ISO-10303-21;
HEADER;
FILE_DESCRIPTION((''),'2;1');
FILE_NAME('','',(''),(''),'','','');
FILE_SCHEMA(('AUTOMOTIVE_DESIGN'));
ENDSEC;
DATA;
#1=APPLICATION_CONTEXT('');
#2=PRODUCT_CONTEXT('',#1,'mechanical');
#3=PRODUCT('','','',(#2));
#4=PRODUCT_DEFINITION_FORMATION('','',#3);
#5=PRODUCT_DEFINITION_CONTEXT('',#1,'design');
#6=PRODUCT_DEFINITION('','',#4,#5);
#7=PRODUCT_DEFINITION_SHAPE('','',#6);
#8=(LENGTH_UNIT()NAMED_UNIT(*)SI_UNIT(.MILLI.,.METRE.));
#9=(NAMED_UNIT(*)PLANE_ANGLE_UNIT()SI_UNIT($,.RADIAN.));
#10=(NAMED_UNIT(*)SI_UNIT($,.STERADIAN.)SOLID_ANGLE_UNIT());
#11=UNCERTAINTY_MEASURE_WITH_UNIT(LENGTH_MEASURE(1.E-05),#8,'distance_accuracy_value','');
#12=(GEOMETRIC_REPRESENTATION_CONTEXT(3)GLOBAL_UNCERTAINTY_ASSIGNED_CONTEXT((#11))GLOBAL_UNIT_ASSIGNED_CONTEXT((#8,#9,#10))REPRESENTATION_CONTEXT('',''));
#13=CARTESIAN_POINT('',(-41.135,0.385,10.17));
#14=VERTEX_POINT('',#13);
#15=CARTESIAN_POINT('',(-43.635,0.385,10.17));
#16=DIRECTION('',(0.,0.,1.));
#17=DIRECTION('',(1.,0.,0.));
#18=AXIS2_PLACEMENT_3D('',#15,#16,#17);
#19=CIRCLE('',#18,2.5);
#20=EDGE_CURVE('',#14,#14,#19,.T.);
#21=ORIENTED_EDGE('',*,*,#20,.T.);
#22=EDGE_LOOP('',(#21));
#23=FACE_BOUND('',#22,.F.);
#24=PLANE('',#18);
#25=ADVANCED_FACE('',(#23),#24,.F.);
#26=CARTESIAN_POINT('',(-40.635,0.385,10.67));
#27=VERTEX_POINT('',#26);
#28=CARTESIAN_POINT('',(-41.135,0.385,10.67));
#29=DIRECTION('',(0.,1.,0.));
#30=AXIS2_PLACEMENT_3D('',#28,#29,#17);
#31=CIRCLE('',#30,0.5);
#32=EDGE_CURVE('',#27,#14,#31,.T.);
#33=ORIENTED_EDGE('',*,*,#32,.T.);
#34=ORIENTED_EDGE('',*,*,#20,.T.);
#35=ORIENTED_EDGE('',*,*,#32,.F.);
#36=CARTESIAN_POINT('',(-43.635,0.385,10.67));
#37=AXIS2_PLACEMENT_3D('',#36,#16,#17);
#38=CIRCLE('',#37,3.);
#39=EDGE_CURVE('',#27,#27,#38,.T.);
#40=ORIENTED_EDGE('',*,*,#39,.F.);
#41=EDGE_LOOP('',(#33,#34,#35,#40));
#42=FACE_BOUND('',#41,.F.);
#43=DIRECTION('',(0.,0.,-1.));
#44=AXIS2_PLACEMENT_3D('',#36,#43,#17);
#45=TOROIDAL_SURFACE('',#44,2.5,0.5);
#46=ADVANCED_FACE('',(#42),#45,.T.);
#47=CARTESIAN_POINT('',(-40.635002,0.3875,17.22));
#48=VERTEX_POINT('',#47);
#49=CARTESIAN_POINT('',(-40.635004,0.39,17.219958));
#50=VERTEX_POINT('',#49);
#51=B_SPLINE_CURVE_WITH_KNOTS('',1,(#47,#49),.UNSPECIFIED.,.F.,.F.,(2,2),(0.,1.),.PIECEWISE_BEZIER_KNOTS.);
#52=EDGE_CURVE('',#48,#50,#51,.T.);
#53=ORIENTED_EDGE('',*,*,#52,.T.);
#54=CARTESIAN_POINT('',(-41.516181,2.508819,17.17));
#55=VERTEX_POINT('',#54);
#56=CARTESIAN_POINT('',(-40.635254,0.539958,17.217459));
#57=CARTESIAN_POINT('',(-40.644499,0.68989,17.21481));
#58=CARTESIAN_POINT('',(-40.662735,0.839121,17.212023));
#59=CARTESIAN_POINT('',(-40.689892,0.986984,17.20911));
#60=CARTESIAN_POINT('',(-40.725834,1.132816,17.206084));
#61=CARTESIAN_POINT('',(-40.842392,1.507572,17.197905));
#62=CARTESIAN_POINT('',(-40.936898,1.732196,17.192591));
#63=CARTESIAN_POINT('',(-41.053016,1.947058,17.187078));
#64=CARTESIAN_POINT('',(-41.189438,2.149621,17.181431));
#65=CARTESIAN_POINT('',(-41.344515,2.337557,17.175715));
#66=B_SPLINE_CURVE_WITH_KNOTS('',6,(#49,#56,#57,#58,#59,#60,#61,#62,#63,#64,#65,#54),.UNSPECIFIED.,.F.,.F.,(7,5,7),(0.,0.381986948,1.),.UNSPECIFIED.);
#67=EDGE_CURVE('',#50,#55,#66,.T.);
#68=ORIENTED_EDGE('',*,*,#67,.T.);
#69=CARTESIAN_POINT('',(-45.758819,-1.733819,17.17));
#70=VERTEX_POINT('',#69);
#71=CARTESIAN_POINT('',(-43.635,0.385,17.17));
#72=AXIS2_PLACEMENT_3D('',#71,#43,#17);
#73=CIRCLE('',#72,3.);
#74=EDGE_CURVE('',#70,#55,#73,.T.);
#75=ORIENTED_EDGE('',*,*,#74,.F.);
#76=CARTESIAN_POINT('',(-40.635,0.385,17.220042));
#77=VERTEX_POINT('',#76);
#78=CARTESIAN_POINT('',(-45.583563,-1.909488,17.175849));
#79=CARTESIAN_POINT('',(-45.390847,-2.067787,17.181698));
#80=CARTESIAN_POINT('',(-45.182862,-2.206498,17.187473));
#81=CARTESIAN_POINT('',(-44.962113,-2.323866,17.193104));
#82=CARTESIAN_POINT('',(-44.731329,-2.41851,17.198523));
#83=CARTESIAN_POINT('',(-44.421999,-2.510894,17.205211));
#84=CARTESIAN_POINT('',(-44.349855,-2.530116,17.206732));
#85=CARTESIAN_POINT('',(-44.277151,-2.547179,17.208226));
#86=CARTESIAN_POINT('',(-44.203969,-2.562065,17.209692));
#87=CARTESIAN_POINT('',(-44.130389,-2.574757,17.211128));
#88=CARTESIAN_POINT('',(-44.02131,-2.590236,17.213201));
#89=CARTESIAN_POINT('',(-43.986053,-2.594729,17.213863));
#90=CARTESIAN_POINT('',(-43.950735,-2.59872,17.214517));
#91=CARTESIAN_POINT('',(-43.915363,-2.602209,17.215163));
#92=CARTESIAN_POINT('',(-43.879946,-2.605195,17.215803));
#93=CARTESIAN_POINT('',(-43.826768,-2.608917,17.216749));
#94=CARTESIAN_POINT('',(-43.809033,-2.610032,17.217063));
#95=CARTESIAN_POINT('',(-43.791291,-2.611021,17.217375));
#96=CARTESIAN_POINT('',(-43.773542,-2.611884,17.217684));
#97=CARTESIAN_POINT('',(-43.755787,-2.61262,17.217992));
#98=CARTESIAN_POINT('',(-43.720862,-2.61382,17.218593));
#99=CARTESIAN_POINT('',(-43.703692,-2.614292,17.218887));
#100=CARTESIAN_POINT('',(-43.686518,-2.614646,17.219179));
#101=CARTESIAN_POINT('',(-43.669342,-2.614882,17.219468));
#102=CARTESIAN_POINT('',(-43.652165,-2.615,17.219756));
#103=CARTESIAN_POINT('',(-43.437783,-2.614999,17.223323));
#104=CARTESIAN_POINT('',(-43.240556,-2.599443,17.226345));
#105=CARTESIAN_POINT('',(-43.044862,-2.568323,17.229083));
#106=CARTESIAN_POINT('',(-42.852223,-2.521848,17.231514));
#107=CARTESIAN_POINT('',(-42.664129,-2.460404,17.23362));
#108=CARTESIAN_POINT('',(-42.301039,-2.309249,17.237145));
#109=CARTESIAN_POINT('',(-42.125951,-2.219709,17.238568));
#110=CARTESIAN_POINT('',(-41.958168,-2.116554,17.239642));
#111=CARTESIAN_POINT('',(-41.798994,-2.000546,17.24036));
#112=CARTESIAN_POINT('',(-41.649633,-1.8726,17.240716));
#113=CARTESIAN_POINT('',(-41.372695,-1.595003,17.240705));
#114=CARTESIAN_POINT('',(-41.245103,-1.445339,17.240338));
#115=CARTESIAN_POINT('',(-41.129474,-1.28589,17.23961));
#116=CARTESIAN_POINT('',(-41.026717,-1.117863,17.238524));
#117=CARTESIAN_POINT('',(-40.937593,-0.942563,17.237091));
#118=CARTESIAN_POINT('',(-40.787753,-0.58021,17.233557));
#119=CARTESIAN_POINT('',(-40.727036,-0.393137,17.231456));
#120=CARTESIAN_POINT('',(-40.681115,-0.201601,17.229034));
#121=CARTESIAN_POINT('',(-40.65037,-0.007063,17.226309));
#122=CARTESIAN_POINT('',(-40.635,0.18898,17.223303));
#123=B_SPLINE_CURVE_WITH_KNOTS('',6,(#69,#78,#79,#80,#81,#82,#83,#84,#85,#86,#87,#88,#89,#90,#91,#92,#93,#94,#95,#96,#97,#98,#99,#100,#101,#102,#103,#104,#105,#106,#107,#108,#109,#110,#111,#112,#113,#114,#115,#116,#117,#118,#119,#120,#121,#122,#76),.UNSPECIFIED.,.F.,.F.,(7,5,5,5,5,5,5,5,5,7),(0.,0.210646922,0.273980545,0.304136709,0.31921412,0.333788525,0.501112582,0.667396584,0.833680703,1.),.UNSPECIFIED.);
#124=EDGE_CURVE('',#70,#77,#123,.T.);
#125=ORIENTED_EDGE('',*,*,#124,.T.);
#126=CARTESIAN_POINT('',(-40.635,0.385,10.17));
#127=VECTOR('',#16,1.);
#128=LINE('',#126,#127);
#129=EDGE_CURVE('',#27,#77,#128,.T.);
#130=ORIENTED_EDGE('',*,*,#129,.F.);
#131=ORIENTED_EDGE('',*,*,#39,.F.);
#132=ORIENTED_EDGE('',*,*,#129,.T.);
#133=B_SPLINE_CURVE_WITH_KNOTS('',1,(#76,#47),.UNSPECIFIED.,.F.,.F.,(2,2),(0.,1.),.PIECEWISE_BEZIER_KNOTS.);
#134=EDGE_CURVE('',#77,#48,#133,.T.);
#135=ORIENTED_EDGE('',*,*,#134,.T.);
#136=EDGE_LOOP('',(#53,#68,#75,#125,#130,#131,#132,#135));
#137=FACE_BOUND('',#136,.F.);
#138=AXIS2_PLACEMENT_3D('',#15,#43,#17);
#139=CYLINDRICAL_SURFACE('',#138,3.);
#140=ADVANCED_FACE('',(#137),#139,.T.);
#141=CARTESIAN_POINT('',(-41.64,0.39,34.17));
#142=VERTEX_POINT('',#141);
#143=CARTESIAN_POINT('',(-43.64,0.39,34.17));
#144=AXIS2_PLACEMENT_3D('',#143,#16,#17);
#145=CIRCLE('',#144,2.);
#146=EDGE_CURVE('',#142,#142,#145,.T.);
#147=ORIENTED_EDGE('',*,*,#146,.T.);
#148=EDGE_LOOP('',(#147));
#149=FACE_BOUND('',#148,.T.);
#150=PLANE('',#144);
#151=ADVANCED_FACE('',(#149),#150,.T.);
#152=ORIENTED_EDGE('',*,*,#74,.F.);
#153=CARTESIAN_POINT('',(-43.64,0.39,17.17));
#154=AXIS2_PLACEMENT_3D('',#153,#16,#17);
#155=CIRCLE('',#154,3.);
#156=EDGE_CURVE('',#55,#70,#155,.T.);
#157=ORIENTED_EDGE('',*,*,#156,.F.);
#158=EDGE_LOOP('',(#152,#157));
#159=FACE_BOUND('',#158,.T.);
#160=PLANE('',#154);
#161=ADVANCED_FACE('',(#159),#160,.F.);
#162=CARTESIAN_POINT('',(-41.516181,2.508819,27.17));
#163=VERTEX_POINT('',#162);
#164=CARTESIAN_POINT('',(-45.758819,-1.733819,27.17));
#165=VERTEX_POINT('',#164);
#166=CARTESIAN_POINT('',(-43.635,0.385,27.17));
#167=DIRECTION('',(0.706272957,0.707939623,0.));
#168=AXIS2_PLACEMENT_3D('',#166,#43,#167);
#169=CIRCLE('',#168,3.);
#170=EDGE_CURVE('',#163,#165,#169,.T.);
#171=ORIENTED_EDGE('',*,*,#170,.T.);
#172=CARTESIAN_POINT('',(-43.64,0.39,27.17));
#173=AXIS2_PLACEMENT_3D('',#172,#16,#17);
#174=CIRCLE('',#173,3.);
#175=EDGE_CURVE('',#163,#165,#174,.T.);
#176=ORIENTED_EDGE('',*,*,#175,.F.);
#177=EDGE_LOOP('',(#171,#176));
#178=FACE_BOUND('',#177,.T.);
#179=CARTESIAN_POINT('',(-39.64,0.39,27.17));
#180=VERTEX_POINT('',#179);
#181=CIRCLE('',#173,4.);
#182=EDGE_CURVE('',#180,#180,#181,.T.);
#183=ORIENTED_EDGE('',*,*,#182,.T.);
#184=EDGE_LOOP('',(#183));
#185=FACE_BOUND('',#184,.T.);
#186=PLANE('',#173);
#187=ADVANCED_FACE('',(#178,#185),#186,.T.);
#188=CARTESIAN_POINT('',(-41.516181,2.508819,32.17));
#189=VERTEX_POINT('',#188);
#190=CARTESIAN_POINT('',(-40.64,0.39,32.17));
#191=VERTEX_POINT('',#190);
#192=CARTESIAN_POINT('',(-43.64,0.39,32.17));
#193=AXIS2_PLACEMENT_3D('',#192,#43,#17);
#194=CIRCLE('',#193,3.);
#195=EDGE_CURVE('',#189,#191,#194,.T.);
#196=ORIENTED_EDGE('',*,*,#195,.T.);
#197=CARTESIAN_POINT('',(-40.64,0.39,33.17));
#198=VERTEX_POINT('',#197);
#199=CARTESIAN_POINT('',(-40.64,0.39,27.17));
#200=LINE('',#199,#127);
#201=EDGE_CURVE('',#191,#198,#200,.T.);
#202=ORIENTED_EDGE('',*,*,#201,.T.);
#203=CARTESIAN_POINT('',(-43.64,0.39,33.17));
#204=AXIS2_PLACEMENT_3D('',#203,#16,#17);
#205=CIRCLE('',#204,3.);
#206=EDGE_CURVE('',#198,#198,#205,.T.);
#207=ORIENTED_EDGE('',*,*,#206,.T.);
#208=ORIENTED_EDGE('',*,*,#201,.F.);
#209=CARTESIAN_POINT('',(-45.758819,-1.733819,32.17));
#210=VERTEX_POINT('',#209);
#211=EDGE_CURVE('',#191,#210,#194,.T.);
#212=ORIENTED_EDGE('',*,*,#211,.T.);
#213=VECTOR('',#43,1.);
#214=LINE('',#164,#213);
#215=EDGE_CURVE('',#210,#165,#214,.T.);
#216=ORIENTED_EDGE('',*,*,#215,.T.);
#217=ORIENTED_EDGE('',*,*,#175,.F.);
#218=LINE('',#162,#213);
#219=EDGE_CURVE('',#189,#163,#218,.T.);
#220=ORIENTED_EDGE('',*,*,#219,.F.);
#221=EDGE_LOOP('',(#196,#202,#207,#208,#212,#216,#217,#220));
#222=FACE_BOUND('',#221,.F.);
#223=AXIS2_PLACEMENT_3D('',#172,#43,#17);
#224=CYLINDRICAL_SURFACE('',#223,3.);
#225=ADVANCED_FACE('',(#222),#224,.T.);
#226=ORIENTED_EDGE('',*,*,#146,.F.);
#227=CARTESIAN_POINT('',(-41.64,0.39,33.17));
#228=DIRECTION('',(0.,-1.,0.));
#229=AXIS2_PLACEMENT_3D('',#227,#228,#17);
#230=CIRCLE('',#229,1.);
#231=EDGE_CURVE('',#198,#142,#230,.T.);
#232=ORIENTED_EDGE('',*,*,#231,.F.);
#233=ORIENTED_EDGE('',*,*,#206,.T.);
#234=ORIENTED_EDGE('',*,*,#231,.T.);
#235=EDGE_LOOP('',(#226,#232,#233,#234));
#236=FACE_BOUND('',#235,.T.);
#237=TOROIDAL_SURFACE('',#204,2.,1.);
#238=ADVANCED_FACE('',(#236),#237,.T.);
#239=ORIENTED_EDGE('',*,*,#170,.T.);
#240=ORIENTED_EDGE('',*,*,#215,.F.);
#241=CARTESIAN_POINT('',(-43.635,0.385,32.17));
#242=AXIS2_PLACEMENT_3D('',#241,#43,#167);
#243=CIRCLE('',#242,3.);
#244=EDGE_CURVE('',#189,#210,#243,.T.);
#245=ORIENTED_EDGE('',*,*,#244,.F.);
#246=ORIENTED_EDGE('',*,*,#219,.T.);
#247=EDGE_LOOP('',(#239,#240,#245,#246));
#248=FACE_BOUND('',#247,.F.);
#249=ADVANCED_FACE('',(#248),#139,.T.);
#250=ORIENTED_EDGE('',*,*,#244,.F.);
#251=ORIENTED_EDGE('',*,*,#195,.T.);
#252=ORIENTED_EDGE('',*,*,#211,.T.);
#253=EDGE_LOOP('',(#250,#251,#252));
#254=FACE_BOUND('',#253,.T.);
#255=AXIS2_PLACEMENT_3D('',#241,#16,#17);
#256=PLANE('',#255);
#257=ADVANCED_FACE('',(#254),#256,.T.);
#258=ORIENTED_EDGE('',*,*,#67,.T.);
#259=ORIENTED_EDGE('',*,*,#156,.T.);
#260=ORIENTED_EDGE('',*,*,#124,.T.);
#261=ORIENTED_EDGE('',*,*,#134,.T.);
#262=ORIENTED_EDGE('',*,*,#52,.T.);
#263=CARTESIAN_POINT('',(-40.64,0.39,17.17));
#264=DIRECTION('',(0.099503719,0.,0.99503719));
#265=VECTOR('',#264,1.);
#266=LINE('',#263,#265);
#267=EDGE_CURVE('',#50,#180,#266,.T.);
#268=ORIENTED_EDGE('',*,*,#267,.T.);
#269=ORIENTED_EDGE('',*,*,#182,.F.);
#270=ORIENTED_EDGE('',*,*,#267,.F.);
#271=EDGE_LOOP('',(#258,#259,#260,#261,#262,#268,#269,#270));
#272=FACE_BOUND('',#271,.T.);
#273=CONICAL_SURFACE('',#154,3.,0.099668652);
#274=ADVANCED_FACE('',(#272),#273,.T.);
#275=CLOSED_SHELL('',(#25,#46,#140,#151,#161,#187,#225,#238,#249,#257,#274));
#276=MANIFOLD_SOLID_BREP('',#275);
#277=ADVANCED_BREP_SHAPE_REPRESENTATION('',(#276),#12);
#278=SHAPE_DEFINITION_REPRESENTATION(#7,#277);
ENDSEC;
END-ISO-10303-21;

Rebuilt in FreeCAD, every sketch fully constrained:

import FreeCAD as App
import Part
import Sketcher

V = App.Vector


def edges_at(feature, points):
    """Names of the edges that pass closest to the given points."""
    edges = feature.Shape.Edges
    near = lambda p: min(range(len(edges)), key=lambda i: edges[i].distToShape(Part.Vertex(*p))[0])
    return sorted({f"Edge{near(p) + 1}" for p in points})

doc = App.newDocument("Part")
body = doc.addObject("PartDesign::Body", "Body")

sketch1 = body.newObject("Sketcher::SketchObject", "Sketch")
sketch1.AttachmentSupport = (doc.getObject("XY_Plane"), [""])
sketch1.MapMode = "FlatFace"
sketch1.AttachmentOffset = App.Placement(V(0, 0, 10.17), App.Rotation())
sketch1.addGeometry(Part.Circle(V(-43.6, 0.4, 0), V(0, 0, 1), 3), False)
sketch1.addConstraint(Sketcher.Constraint("Diameter", 0, 6.0))
sketch1.addConstraint(Sketcher.Constraint("DistanceX", 0, 3, -1, 1, 43.635))
sketch1.addConstraint(Sketcher.Constraint("DistanceY", -1, 1, 0, 3, 0.385))
pad1 = body.newObject("PartDesign::Pad", "Pad")
pad1.Profile = sketch1
pad1.Length = 22
doc.recompute()

fillet = body.newObject("PartDesign::Fillet", "Fillet")
fillet.Base = (pad1, edges_at(pad1, [(-46.635, 0.385, 10.17)]))
fillet.Radius = 0.5
body2 = doc.addObject("PartDesign::Body", "Body001")

sketch2 = body2.newObject("Sketcher::SketchObject", "Sketch001")
sketch2.AttachmentSupport = (doc.getObject("XZ_Plane001"), [""])
sketch2.MapMode = "FlatFace"
sketch2.AttachmentOffset = App.Placement(V(0, 0, -0.39), App.Rotation())
sketch2.addGeometry(Part.LineSegment(V(-43.6, 17.2, 0), V(-40.6, 17.2, 0)), False)
sketch2.addGeometry(Part.LineSegment(V(-40.6, 17.2, 0), V(-39.6, 27.2, 0)), False)
sketch2.addGeometry(Part.LineSegment(V(-39.6, 27.2, 0), V(-43.6, 27.2, 0)), False)
sketch2.addGeometry(Part.LineSegment(V(-43.6, 27.2, 0), V(-43.6, 17.2, 0)), False)
sketch2.addGeometry(Part.LineSegment(V(-43.6, 17.2, 0), V(-43.6, 27.2, 0)), True)
sketch2.addConstraint(Sketcher.Constraint("Coincident", 0, 2, 1, 1))
sketch2.addConstraint(Sketcher.Constraint("Coincident", 1, 2, 2, 1))
sketch2.addConstraint(Sketcher.Constraint("Coincident", 2, 2, 3, 1))
sketch2.addConstraint(Sketcher.Constraint("Coincident", 3, 2, 0, 1))
sketch2.addConstraint(Sketcher.Constraint("Horizontal", 0))
sketch2.addConstraint(Sketcher.Constraint("Horizontal", 2))
sketch2.addConstraint(Sketcher.Constraint("Vertical", 3))
sketch2.addConstraint(Sketcher.Constraint("Vertical", 4))
sketch2.addConstraint(Sketcher.Constraint("Coincident", 4, 1, 3, 2))
sketch2.addConstraint(Sketcher.Constraint("Horizontal", 1, 2, 4, 2))
sketch2.addConstraint(Sketcher.Constraint("DistanceX", 0, 1, 0, 2, 3.0))
sketch2.addConstraint(Sketcher.Constraint("DistanceX", 2, 2, 2, 1, 4.0))
sketch2.addConstraint(Sketcher.Constraint("DistanceY", 3, 2, 3, 1, 10.0))
sketch2.addConstraint(Sketcher.Constraint("DistanceX", 0, 2, -1, 1, 40.64))
sketch2.addConstraint(Sketcher.Constraint("DistanceY", -1, 1, 0, 2, 17.17))
revolution = body2.newObject("PartDesign::Revolution", "Revolution")
revolution.Profile = sketch2
revolution.ReferenceAxis = (sketch2, ["Axis0"])
revolution.Angle = 360
body3 = doc.addObject("PartDesign::Body", "Body002")

sketch3 = body3.newObject("Sketcher::SketchObject", "Sketch002")
sketch3.AttachmentSupport = (doc.getObject("XY_Plane002"), [""])
sketch3.MapMode = "FlatFace"
sketch3.AttachmentOffset = App.Placement(V(0, 0, 27.17), App.Rotation())
sketch3.addGeometry(Part.Circle(V(-43.6, 0.4, 0), V(0, 0, 1), 3), False)
sketch3.addConstraint(Sketcher.Constraint("Diameter", 0, 6.0))
sketch3.addConstraint(Sketcher.Constraint("DistanceX", 0, 3, -1, 1, 43.64))
sketch3.addConstraint(Sketcher.Constraint("DistanceY", -1, 1, 0, 3, 0.39))
pad2 = body3.newObject("PartDesign::Pad", "Pad001")
pad2.Profile = sketch3
pad2.Length = 7
doc.recompute()

fillet2 = body3.newObject("PartDesign::Fillet", "Fillet001")
fillet2.Base = (pad2, edges_at(pad2, [(-46.64, 0.39, 34.17)]))
fillet2.Radius = 1
doc.recompute()

boolean = body3.newObject("PartDesign::Boolean", "Boolean")
boolean.Type = "Fuse"
boolean.addObjects([body])
doc.recompute()

boolean2 = body3.newObject("PartDesign::Boolean", "Boolean001")
boolean2.Type = "Fuse"
boolean2.addObjects([body2])

doc.recompute()
